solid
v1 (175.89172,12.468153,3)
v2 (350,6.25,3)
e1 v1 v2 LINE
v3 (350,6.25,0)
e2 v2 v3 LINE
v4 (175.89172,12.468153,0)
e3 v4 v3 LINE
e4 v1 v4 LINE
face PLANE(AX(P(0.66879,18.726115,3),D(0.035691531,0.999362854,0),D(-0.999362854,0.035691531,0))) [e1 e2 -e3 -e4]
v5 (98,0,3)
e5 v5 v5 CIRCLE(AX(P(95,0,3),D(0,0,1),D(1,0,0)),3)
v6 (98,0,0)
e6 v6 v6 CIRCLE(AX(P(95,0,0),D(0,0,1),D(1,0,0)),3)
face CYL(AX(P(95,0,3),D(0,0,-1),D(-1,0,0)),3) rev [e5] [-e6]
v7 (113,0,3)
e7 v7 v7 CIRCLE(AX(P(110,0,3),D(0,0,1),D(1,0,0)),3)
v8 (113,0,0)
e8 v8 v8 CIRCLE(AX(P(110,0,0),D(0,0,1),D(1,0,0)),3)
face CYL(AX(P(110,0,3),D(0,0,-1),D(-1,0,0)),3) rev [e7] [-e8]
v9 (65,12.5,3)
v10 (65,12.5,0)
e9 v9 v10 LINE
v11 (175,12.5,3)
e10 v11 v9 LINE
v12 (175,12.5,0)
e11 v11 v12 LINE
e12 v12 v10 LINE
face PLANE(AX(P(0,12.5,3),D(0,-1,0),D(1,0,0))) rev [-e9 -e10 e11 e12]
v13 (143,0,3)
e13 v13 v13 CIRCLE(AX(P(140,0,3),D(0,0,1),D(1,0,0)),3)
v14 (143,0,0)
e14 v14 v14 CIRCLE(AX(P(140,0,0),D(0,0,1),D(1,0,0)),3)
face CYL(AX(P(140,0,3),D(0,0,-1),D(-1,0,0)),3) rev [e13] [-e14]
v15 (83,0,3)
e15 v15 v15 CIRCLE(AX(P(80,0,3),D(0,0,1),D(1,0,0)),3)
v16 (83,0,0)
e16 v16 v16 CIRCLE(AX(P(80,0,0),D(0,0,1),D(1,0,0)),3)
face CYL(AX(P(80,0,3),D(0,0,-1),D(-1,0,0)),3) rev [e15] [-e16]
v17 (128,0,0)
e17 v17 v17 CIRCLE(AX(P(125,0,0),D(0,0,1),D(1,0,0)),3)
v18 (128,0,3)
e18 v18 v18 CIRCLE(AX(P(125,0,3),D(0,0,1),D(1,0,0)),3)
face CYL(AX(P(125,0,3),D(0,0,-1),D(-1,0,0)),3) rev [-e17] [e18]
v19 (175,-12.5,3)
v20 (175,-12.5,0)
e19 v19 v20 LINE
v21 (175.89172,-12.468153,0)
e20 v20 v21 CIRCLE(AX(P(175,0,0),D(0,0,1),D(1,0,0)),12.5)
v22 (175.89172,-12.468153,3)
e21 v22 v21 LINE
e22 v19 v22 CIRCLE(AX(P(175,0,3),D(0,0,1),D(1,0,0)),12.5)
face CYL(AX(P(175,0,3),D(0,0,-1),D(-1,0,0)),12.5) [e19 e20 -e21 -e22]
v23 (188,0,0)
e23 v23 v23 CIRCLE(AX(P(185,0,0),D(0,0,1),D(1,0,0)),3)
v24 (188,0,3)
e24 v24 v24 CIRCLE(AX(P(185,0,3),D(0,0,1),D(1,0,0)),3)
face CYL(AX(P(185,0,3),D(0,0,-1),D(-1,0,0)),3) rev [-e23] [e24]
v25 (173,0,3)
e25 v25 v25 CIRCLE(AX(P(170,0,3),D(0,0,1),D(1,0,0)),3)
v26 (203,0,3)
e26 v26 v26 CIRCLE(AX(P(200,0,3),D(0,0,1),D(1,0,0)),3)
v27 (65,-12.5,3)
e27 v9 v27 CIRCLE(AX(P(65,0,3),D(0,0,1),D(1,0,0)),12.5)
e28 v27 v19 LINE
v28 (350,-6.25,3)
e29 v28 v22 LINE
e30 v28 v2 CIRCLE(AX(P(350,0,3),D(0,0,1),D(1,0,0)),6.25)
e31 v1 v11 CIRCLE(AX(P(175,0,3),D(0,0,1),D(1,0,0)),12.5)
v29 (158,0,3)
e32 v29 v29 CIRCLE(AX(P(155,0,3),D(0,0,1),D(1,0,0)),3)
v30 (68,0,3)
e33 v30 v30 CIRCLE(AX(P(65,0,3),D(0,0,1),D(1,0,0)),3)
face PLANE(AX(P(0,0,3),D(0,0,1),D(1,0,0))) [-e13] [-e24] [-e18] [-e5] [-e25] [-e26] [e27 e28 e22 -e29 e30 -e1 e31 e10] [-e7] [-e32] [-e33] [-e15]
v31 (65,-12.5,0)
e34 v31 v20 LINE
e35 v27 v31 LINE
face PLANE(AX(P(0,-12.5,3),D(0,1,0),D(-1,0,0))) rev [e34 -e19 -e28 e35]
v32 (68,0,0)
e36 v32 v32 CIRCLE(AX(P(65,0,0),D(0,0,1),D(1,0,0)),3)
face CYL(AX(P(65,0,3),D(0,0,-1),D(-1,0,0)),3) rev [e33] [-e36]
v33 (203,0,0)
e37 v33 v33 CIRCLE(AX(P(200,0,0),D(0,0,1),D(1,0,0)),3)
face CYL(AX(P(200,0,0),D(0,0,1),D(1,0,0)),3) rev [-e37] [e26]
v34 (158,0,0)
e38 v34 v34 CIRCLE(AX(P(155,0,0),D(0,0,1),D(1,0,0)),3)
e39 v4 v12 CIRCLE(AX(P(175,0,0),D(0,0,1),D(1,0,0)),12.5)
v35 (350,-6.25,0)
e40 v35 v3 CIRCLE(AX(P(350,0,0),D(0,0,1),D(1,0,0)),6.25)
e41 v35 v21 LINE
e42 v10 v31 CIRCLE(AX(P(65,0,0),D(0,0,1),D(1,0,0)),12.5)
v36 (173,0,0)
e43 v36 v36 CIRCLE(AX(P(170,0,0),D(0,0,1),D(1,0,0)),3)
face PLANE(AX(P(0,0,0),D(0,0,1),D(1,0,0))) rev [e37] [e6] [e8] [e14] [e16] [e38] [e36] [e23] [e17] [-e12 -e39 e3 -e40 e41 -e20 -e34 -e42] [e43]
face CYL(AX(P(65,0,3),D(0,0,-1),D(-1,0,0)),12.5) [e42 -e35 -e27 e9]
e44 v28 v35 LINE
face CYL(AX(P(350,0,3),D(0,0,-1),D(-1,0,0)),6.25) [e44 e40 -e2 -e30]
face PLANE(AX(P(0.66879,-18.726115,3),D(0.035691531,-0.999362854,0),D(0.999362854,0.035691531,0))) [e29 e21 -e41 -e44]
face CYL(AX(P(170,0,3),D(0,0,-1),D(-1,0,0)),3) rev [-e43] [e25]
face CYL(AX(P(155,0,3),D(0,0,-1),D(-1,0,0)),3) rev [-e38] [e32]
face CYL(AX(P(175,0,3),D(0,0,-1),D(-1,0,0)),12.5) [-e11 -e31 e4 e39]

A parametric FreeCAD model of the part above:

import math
import FreeCAD as App
import Part
import Sketcher
from FreeCAD import Vector

doc = App.newDocument("Part")
body = doc.addObject("PartDesign::Body", "Body")

sketch1 = doc.addObject("Sketcher::SketchObject", "Sketch")
body.addObject(sketch1)
sketch1.AttachmentSupport = (doc.XY_Plane, [""])
sketch1.MapMode = "FlatFace"
sketch1.addGeometry(Part.LineSegment(Vector(350, 6.2, 0), Vector(175.9, 12.5, 0)), False)
sketch1.addGeometry(Part.ArcOfCircle(Part.Circle(Vector(175, 0, 0), Vector(0, 0, 1), 12.5), math.radians(85.91), math.radians(90)), False)
sketch1.addGeometry(Part.LineSegment(Vector(175, 12.5, 0), Vector(65, 12.5, 0)), False)
sketch1.addGeometry(Part.ArcOfCircle(Part.Circle(Vector(65, 0, 0), Vector(0, 0, 1), 12.5), math.radians(90), math.radians(270)), False)
sketch1.addGeometry(Part.LineSegment(Vector(65, -12.5, 0), Vector(175, -12.5, 0)), False)
sketch1.addGeometry(Part.ArcOfCircle(Part.Circle(Vector(175, 0, 0), Vector(0, 0, 1), 12.5), math.radians(-90), math.radians(-85.91)), False)
sketch1.addGeometry(Part.LineSegment(Vector(175.9, -12.5, 0), Vector(350, -6.2, 0)), False)
sketch1.addGeometry(Part.ArcOfCircle(Part.Circle(Vector(350, 0, 0), Vector(0, 0, 1), 6.2), math.radians(-90), math.radians(90)), False)
sketch1.addGeometry(Part.Circle(Vector(185, 0, 0), Vector(0, 0, 1), 3), False)
sketch1.addGeometry(Part.Circle(Vector(170, 0, 0), Vector(0, 0, 1), 3), False)
sketch1.addGeometry(Part.Circle(Vector(155, 0, 0), Vector(0, 0, 1), 3), False)
sketch1.addGeometry(Part.Circle(Vector(140, 0, 0), Vector(0, 0, 1), 3), False)
sketch1.addGeometry(Part.Circle(Vector(125, 0, 0), Vector(0, 0, 1), 3), False)
sketch1.addGeometry(Part.Circle(Vector(110, 0, 0), Vector(0, 0, 1), 3), False)
sketch1.addGeometry(Part.Circle(Vector(95, 0, 0), Vector(0, 0, 1), 3), False)
sketch1.addGeometry(Part.Circle(Vector(80, 0, 0), Vector(0, 0, 1), 3), False)
sketch1.addGeometry(Part.Circle(Vector(65, 0, 0), Vector(0, 0, 1), 3), False)
sketch1.addConstraint(Sketcher.Constraint("Coincident", 0, 2, 1, 1))
sketch1.addConstraint(Sketcher.Constraint("Tangent", 1, 2, 2, 1))
sketch1.addConstraint(Sketcher.Constraint("Tangent", 2, 2, 3, 1))
sketch1.addConstraint(Sketcher.Constraint("Tangent", 3, 2, 4, 1))
sketch1.addConstraint(Sketcher.Constraint("Tangent", 4, 2, 5, 1))
sketch1.addConstraint(Sketcher.Constraint("Coincident", 5, 2, 6, 1))
sketch1.addConstraint(Sketcher.Constraint("Coincident", 6, 2, 7, 1))
sketch1.addConstraint(Sketcher.Constraint("Coincident", 7, 2, 0, 1))
sketch1.addConstraint(Sketcher.Constraint("Horizontal", 2))
sketch1.addConstraint(Sketcher.Constraint("Horizontal", 4))
sketch1.addConstraint(Sketcher.Constraint("Coincident", 5, 3, 1, 3))
sketch1.addConstraint(Sketcher.Constraint("Coincident", 16, 3, 3, 3))
sketch1.addConstraint(Sketcher.Constraint("Equal", 1, 3))
sketch1.addConstraint(Sketcher.Constraint("Equal", 8, 9))
sketch1.addConstraint(Sketcher.Constraint("Equal", 9, 10))
sketch1.addConstraint(Sketcher.Constraint("Equal", 10, 11))
sketch1.addConstraint(Sketcher.Constraint("Equal", 11, 12))
sketch1.addConstraint(Sketcher.Constraint("Equal", 12, 13))
sketch1.addConstraint(Sketcher.Constraint("Equal", 13, 14))
sketch1.addConstraint(Sketcher.Constraint("Equal", 14, 15))
sketch1.addConstraint(Sketcher.Constraint("Equal", 15, 16))
sketch1.addConstraint(Sketcher.Constraint("Symmetric", 0, 2, 5, 2, -1))
sketch1.addConstraint(Sketcher.Constraint("Symmetric", 6, 2, 7, 2, -1))
sketch1.addConstraint(Sketcher.Constraint("PointOnObject", 8, 3, -1))
sketch1.addConstraint(Sketcher.Constraint("PointOnObject", 9, 3, -1))
sketch1.addConstraint(Sketcher.Constraint("PointOnObject", 10, 3, -1))
sketch1.addConstraint(Sketcher.Constraint("PointOnObject", 11, 3, -1))
sketch1.addConstraint(Sketcher.Constraint("PointOnObject", 12, 3, -1))
sketch1.addConstraint(Sketcher.Constraint("PointOnObject", 13, 3, -1))
sketch1.addConstraint(Sketcher.Constraint("PointOnObject", 14, 3, -1))
sketch1.addConstraint(Sketcher.Constraint("PointOnObject", 15, 3, -1))
sketch1.addConstraint(Sketcher.Constraint("Vertical", 7, 3, 6, 2))
sketch1.addConstraint(Sketcher.Constraint("Diameter", 8, 6.0))
sketch1.addConstraint(Sketcher.Constraint("Radius", 1, 12.5))
sketch1.addConstraint(Sketcher.Constraint("DistanceX", 2, 2, 2, 1, 110.0))
sketch1.addConstraint(Sketcher.Constraint("Radius", 7, 6.25))
sketch1.addConstraint(Sketcher.Constraint("DistanceX", -1, 1, 1, 3, 175.0))
sketch1.addConstraint(Sketcher.Constraint("DistanceX", -1, 1, 7, 3, 350.0))
sketch1.addConstraint(Sketcher.Constraint("DistanceX", -1, 1, 8, 3, 185.0))
sketch1.addConstraint(Sketcher.Constraint("DistanceX", -1, 1, 9, 3, 170.0))
sketch1.addConstraint(Sketcher.Constraint("DistanceX", -1, 1, 10, 3, 155.0))
sketch1.addConstraint(Sketcher.Constraint("DistanceX", -1, 1, 11, 3, 140.0))
sketch1.addConstraint(Sketcher.Constraint("DistanceX", -1, 1, 12, 3, 125.0))
sketch1.addConstraint(Sketcher.Constraint("DistanceX", -1, 1, 13, 3, 110.0))
sketch1.addConstraint(Sketcher.Constraint("DistanceX", -1, 1, 14, 3, 95.0))
sketch1.addConstraint(Sketcher.Constraint("DistanceX", -1, 1, 15, 3, 80.0))
sketch1.addConstraint(Sketcher.Constraint("DistanceX", -1, 1, 0, 2, 175.89172))
pad1 = doc.addObject("PartDesign::Pad", "Pad")
body.addObject(pad1)
pad1.Profile = sketch1
pad1.Length = 3

sketch2 = doc.addObject("Sketcher::SketchObject", "Sketch001")
body.addObject(sketch2)
sketch2.AttachmentSupport = (doc.XY_Plane, [""])
sketch2.MapMode = "FlatFace"
sketch2.AttachmentOffset = App.Placement(Vector(0, 0, 3), App.Rotation())
sketch2.addGeometry(Part.Circle(Vector(200, 0, 0), Vector(0, 0, 1), 3), False)
sketch2.addConstraint(Sketcher.Constraint("PointOnObject", 0, 3, -1))
sketch2.addConstraint(Sketcher.Constraint("Diameter", 0, 6.0))
sketch2.addConstraint(Sketcher.Constraint("DistanceX", -1, 1, 0, 3, 200.0))
pocket1 = doc.addObject("PartDesign::Pocket", "Pocket")
body.addObject(pocket1)
pocket1.Profile = sketch2
pocket1.Length = 3

doc.recompute()
